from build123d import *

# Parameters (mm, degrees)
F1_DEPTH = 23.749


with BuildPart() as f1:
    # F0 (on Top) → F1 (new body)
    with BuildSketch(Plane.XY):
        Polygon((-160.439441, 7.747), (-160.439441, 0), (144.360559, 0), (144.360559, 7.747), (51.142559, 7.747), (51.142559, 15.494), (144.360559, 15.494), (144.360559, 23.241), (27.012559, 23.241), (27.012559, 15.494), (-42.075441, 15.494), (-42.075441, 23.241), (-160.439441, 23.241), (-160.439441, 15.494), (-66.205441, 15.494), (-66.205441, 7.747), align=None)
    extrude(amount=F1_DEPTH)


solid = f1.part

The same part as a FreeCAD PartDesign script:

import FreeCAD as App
import Part
import Sketcher

V = App.Vector
Q = App.Units.Quantity

doc = App.newDocument("Part")
body = doc.addObject("PartDesign::Body", "Body")

sketch1 = body.newObject("Sketcher::SketchObject", "Sketch")
sketch1.AttachmentSupport = (doc.getObject("XY_Plane"), [""])
sketch1.MapMode = "FlatFace"
sketch1.addGeometry(Part.LineSegment(V(-160, 8, 0), V(-160, 0, 0)), False)
sketch1.addGeometry(Part.LineSegment(V(-160, 0, 0), V(144, 0, 0)), False)
sketch1.addGeometry(Part.LineSegment(V(144, 0, 0), V(144, 8, 0)), False)
sketch1.addGeometry(Part.LineSegment(V(144, 8, 0), V(51, 8, 0)), False)
sketch1.addGeometry(Part.LineSegment(V(51, 8, 0), V(51, 15, 0)), False)
sketch1.addGeometry(Part.LineSegment(V(51, 15, 0), V(144, 15, 0)), False)
sketch1.addGeometry(Part.LineSegment(V(144, 15, 0), V(144, 23, 0)), False)
sketch1.addGeometry(Part.LineSegment(V(144, 23, 0), V(27, 23, 0)), False)
sketch1.addGeometry(Part.LineSegment(V(27, 23, 0), V(27, 15, 0)), False)
sketch1.addGeometry(Part.LineSegment(V(27, 15, 0), V(-42, 15, 0)), False)
sketch1.addGeometry(Part.LineSegment(V(-42, 15, 0), V(-42, 23, 0)), False)
sketch1.addGeometry(Part.LineSegment(V(-42, 23, 0), V(-160, 23, 0)), False)
sketch1.addGeometry(Part.LineSegment(V(-160, 23, 0), V(-160, 15, 0)), False)
sketch1.addGeometry(Part.LineSegment(V(-160, 15, 0), V(-66, 15, 0)), False)
sketch1.addGeometry(Part.LineSegment(V(-66, 15, 0), V(-66, 8, 0)), False)
sketch1.addGeometry(Part.LineSegment(V(-66, 8, 0), V(-160, 8, 0)), False)
sketch1.addConstraint(Sketcher.Constraint("Coincident", 0, 2, 1, 1))
sketch1.addConstraint(Sketcher.Constraint("Coincident", 1, 2, 2, 1))
sketch1.addConstraint(Sketcher.Constraint("Coincident", 2, 2, 3, 1))
sketch1.addConstraint(Sketcher.Constraint("Coincident", 3, 2, 4, 1))
sketch1.addConstraint(Sketcher.Constraint("Coincident", 4, 2, 5, 1))
sketch1.addConstraint(Sketcher.Constraint("Coincident", 5, 2, 6, 1))
sketch1.addConstraint(Sketcher.Constraint("Coincident", 6, 2, 7, 1))
sketch1.addConstraint(Sketcher.Constraint("Coincident", 7, 2, 8, 1))
sketch1.addConstraint(Sketcher.Constraint("Coincident", 8, 2, 9, 1))
sketch1.addConstraint(Sketcher.Constraint("Coincident", 9, 2, 10, 1))
sketch1.addConstraint(Sketcher.Constraint("Coincident", 10, 2, 11, 1))
sketch1.addConstraint(Sketcher.Constraint("Coincident", 11, 2, 12, 1))
sketch1.addConstraint(Sketcher.Constraint("Coincident", 12, 2, 13, 1))
sketch1.addConstraint(Sketcher.Constraint("Coincident", 13, 2, 14, 1))
sketch1.addConstraint(Sketcher.Constraint("Coincident", 14, 2, 15, 1))
sketch1.addConstraint(Sketcher.Constraint("Coincident", 15, 2, 0, 1))
sketch1.addConstraint(Sketcher.Constraint("Vertical", 0))
sketch1.addConstraint(Sketcher.Constraint("Horizontal", 1))
sketch1.addConstraint(Sketcher.Constraint("Vertical", 2))
sketch1.addConstraint(Sketcher.Constraint("Horizontal", 3))
sketch1.addConstraint(Sketcher.Constraint("Vertical", 4))
sketch1.addConstraint(Sketcher.Constraint("Horizontal", 5))
sketch1.addConstraint(Sketcher.Constraint("Vertical", 6))
sketch1.addConstraint(Sketcher.Constraint("Horizontal", 7))
sketch1.addConstraint(Sketcher.Constraint("Vertical", 8))
sketch1.addConstraint(Sketcher.Constraint("Horizontal", 9))
sketch1.addConstraint(Sketcher.Constraint("Vertical", 10))
sketch1.addConstraint(Sketcher.Constraint("Horizontal", 11))
sketch1.addConstraint(Sketcher.Constraint("Vertical", 12))
sketch1.addConstraint(Sketcher.Constraint("Horizontal", 13))
sketch1.addConstraint(Sketcher.Constraint("Vertical", 14))
sketch1.addConstraint(Sketcher.Constraint("Horizontal", 15))
sketch1.addConstraint(Sketcher.Constraint("PointOnObject", 0, 2, -1))
sketch1.addConstraint(Sketcher.Constraint("Horizontal", 5, 2, 8, 2))
sketch1.addConstraint(Sketcher.Constraint("Horizontal", 7, 2, 10, 2))
sketch1.addConstraint(Sketcher.Constraint("Horizontal", 9, 2, 12, 2))
sketch1.addConstraint(Sketcher.Constraint("Horizontal", 3, 2, 14, 2))
sketch1.addConstraint(Sketcher.Constraint("Vertical", 2, 2, 5, 2))
sketch1.addConstraint(Sketcher.Constraint("Vertical", 0, 2, 11, 2))
sketch1.addConstraint(Sketcher.Constraint("Equal", 2, 4))
sketch1.addConstraint(Sketcher.Constraint("Equal", 4, 6))
sketch1.addConstraint(Sketcher.Constraint("DistanceX", 1, 1, 1, 2, Q("12 in")))
sketch1.addConstraint(Sketcher.Constraint("DistanceX", 3, 2, 3, 1, Q("3.67 in")))
sketch1.addConstraint(Sketcher.Constraint("DistanceX", 7, 2, 7, 1, Q("4.62 in")))
sketch1.addConstraint(Sketcher.Constraint("DistanceX", 9, 2, 9, 1, Q("2.72 in")))
sketch1.addConstraint(Sketcher.Constraint("DistanceX", 13, 1, 13, 2, Q("3.71 in")))
sketch1.addConstraint(Sketcher.Constraint("DistanceY", 0, 2, 0, 1, Q("0.305 in")))
sketch1.addConstraint(Sketcher.Constraint("DistanceX", 0, 2, -1, 1, 160.439441))
pad1 = body.newObject("PartDesign::Pad", "Pad")
pad1.Profile = sketch1
pad1.Length = Q("0.935 in")

doc.recompute()
